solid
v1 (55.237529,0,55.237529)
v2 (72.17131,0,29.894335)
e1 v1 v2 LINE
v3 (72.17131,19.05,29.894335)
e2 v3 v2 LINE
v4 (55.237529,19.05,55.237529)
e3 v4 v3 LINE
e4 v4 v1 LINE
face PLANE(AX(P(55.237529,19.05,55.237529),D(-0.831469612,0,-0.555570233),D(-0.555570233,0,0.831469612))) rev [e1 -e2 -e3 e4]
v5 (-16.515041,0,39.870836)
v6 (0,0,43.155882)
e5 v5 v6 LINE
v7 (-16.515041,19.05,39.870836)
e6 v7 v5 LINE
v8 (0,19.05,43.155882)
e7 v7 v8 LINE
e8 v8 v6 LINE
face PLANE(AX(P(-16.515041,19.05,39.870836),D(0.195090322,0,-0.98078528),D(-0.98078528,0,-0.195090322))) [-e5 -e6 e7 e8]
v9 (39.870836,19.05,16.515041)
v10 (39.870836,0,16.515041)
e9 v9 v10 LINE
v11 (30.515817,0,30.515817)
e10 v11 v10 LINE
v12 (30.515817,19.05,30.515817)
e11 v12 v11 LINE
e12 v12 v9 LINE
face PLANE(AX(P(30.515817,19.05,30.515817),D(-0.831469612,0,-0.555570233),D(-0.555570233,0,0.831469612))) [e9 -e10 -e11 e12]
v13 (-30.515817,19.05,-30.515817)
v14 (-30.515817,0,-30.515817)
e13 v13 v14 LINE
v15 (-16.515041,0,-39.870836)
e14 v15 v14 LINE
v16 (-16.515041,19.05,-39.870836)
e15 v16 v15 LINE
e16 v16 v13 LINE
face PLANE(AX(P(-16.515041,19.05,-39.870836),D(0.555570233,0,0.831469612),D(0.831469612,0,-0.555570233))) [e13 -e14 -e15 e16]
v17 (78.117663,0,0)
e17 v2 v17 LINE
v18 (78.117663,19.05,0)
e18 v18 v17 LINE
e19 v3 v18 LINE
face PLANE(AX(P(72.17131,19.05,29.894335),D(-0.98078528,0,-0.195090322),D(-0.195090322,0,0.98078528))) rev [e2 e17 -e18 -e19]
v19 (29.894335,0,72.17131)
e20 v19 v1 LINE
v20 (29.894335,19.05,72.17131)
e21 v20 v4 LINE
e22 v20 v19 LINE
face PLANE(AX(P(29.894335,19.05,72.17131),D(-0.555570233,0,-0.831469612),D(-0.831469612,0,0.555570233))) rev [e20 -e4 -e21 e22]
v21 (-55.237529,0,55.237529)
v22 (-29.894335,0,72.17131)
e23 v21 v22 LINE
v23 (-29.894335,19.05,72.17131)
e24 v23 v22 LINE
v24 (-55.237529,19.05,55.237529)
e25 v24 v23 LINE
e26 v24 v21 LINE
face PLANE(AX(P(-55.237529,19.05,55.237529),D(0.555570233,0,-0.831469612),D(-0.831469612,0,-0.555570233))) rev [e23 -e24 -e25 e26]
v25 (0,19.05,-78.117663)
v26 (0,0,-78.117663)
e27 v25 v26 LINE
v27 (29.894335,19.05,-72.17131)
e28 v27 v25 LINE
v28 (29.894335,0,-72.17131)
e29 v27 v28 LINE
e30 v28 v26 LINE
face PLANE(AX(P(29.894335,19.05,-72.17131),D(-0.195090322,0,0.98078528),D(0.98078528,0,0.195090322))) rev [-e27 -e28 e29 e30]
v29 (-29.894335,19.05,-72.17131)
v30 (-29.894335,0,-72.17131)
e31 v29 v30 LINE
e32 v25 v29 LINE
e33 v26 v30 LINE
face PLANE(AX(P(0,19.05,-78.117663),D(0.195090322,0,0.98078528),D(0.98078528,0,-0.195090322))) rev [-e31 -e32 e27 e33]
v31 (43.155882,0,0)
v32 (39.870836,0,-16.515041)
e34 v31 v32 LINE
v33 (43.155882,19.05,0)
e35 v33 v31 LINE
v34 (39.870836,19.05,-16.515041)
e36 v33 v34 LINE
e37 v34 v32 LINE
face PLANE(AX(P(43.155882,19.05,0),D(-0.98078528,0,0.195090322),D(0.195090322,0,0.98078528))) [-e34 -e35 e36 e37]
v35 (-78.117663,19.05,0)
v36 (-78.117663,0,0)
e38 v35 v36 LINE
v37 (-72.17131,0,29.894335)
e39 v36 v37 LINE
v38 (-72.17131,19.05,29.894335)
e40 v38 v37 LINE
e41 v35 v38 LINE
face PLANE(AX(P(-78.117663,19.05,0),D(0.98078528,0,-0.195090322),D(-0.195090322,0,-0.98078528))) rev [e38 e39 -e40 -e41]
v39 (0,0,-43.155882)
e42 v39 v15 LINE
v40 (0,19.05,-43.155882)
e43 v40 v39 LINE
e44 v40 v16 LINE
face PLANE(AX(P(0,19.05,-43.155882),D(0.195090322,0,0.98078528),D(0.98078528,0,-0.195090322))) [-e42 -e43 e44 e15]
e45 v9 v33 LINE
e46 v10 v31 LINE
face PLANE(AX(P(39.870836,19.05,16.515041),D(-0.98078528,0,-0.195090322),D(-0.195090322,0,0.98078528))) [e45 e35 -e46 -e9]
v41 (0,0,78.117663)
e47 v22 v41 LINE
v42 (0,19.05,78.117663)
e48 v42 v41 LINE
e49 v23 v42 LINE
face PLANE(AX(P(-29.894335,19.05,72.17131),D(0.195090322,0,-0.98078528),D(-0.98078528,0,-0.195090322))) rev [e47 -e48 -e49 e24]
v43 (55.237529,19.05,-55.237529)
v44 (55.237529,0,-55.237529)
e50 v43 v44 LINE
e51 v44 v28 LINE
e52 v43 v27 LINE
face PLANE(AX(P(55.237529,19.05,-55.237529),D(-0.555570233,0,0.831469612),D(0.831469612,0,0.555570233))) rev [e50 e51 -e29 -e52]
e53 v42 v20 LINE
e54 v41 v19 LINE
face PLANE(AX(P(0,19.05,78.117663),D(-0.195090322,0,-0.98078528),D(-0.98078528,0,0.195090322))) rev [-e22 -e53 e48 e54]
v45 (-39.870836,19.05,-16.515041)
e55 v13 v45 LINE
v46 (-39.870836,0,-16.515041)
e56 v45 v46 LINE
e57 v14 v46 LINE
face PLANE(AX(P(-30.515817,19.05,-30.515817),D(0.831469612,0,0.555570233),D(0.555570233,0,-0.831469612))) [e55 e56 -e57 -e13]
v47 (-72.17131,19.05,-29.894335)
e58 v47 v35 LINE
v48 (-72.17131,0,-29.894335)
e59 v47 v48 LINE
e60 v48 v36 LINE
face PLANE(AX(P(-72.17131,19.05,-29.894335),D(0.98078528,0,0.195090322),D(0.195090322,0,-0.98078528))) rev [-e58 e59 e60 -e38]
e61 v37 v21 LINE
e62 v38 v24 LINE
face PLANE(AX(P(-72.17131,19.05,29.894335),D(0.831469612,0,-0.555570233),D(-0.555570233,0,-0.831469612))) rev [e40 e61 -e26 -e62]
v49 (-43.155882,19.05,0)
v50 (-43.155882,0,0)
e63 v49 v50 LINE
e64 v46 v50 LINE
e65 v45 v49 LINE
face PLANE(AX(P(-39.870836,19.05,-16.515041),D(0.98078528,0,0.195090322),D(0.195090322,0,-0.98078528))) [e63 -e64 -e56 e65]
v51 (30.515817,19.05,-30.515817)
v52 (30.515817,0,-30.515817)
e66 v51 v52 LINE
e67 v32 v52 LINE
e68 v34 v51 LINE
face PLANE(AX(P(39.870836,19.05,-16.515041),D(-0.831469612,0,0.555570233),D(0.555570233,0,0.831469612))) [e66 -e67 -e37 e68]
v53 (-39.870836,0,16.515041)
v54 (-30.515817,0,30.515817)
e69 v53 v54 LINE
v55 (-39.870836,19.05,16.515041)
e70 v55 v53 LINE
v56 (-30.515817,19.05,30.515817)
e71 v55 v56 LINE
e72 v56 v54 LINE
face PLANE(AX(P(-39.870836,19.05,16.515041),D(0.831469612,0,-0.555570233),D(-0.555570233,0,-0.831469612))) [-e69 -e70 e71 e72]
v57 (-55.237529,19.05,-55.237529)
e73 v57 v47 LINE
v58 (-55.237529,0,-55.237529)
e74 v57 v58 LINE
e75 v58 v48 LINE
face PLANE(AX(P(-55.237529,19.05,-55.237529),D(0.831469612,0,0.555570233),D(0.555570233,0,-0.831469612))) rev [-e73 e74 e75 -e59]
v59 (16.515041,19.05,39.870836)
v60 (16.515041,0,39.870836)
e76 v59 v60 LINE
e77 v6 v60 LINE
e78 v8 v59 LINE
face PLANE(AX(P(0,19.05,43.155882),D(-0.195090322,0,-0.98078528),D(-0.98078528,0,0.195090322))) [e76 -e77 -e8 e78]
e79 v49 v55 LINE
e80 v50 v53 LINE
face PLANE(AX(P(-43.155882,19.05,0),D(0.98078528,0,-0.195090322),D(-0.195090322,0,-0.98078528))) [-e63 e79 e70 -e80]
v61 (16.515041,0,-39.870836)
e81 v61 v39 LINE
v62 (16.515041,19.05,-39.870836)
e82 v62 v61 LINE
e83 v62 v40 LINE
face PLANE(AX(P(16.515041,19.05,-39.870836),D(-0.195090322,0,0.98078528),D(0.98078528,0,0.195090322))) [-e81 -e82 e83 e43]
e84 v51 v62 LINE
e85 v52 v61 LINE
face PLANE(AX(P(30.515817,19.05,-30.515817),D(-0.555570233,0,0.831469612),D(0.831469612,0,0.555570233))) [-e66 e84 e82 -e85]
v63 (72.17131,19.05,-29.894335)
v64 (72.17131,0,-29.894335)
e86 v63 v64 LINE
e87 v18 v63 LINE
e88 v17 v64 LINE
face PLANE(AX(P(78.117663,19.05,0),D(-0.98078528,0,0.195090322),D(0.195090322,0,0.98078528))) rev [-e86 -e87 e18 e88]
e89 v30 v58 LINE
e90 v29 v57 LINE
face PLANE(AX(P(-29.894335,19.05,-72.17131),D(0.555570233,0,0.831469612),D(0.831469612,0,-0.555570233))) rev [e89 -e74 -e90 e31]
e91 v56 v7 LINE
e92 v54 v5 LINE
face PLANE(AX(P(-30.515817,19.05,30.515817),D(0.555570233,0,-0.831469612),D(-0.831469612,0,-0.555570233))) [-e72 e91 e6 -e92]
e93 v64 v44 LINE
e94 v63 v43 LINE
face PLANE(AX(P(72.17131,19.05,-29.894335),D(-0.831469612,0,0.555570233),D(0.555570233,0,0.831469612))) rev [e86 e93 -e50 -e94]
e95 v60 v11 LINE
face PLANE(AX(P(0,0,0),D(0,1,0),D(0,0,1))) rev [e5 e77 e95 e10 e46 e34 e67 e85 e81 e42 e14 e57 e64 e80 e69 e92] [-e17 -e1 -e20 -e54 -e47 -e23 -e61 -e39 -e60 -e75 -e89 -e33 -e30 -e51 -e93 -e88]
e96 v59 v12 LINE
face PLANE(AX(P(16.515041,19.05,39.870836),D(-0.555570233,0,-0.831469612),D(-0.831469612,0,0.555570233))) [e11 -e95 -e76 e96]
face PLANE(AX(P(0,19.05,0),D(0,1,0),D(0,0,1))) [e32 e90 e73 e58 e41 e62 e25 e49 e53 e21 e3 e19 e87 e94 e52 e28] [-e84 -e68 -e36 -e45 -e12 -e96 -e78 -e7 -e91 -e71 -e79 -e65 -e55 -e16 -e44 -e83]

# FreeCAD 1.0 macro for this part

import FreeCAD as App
import Part
import Sketcher
Q = App.Units.Quantity

doc = App.newDocument("Part")
body = doc.addObject("PartDesign::Body", "Body")

# Sketch on XZ plane
sketch1 = body.newObject("Sketcher::SketchObject", "Sketch")
sketch1.AttachmentSupport = (doc.getObject("XZ_Plane"), [""])
sketch1.MapMode = "FlatFace"
sketch1.addGeometry([
    Part.LineSegment(App.Vector(-78, 0, 0), App.Vector(-72, 30, 0)),  # 0
    Part.LineSegment(App.Vector(-72, 30, 0), App.Vector(-55, 55, 0)),  # 1
    Part.LineSegment(App.Vector(-55, 55, 0), App.Vector(-30, 72, 0)),  # 2
    Part.LineSegment(App.Vector(-30, 72, 0), App.Vector(0, 78, 0)),  # 3
    Part.LineSegment(App.Vector(0, 78, 0), App.Vector(30, 72, 0)),  # 4
    Part.LineSegment(App.Vector(30, 72, 0), App.Vector(55, 55, 0)),  # 5
    Part.LineSegment(App.Vector(55, 55, 0), App.Vector(72, 30, 0)),  # 6
    Part.LineSegment(App.Vector(72, 30, 0), App.Vector(78, 0, 0)),  # 7
    Part.LineSegment(App.Vector(78, 0, 0), App.Vector(72, -30, 0)),  # 8
    Part.LineSegment(App.Vector(72, -30, 0), App.Vector(55, -55, 0)),  # 9
    Part.LineSegment(App.Vector(55, -55, 0), App.Vector(30, -72, 0)),  # 10
    Part.LineSegment(App.Vector(30, -72, 0), App.Vector(0, -78, 0)),  # 11
    Part.LineSegment(App.Vector(0, -78, 0), App.Vector(-30, -72, 0)),  # 12
    Part.LineSegment(App.Vector(-30, -72, 0), App.Vector(-55, -55, 0)),  # 13
    Part.LineSegment(App.Vector(-55, -55, 0), App.Vector(-72, -30, 0)),  # 14
    Part.LineSegment(App.Vector(-72, -30, 0), App.Vector(-78, 0, 0)),  # 15
    Part.LineSegment(App.Vector(-40, 17, 0), App.Vector(-43, 0, 0)),  # 16
    Part.LineSegment(App.Vector(-43, 0, 0), App.Vector(-40, -17, 0)),  # 17
    Part.LineSegment(App.Vector(-40, -17, 0), App.Vector(-31, -31, 0)),  # 18
    Part.LineSegment(App.Vector(-31, -31, 0), App.Vector(-17, -40, 0)),  # 19
    Part.LineSegment(App.Vector(-17, -40, 0), App.Vector(0, -43, 0)),  # 20
    Part.LineSegment(App.Vector(0, -43, 0), App.Vector(17, -40, 0)),  # 21
    Part.LineSegment(App.Vector(17, -40, 0), App.Vector(31, -31, 0)),  # 22
    Part.LineSegment(App.Vector(31, -31, 0), App.Vector(40, -17, 0)),  # 23
    Part.LineSegment(App.Vector(40, -17, 0), App.Vector(43, 0, 0)),  # 24
    Part.LineSegment(App.Vector(43, 0, 0), App.Vector(40, 17, 0)),  # 25
    Part.LineSegment(App.Vector(40, 17, 0), App.Vector(31, 31, 0)),  # 26
    Part.LineSegment(App.Vector(31, 31, 0), App.Vector(17, 40, 0)),  # 27
    Part.LineSegment(App.Vector(17, 40, 0), App.Vector(0, 43, 0)),  # 28
    Part.LineSegment(App.Vector(0, 43, 0), App.Vector(-17, 40, 0)),  # 29
    Part.LineSegment(App.Vector(-17, 40, 0), App.Vector(-31, 31, 0)),  # 30
    Part.LineSegment(App.Vector(-31, 31, 0), App.Vector(-40, 17, 0)),  # 31
], False)
sketch1.addConstraint([
    Sketcher.Constraint("Coincident", 0, 2, 1, 1),
    Sketcher.Constraint("Coincident", 1, 2, 2, 1),
    Sketcher.Constraint("Coincident", 2, 2, 3, 1),
    Sketcher.Constraint("Coincident", 3, 2, 4, 1),
    Sketcher.Constraint("Coincident", 4, 2, 5, 1),
    Sketcher.Constraint("Coincident", 5, 2, 6, 1),
    Sketcher.Constraint("Coincident", 6, 2, 7, 1),
    Sketcher.Constraint("Coincident", 7, 2, 8, 1),
    Sketcher.Constraint("Coincident", 8, 2, 9, 1),
    Sketcher.Constraint("Coincident", 9, 2, 10, 1),
    Sketcher.Constraint("Coincident", 10, 2, 11, 1),
    Sketcher.Constraint("Coincident", 11, 2, 12, 1),
    Sketcher.Constraint("Coincident", 12, 2, 13, 1),
    Sketcher.Constraint("Coincident", 13, 2, 14, 1),
    Sketcher.Constraint("Coincident", 14, 2, 15, 1),
    Sketcher.Constraint("Coincident", 15, 2, 0, 1),
    Sketcher.Constraint("Coincident", 16, 2, 17, 1),
    Sketcher.Constraint("Coincident", 17, 2, 18, 1),
    Sketcher.Constraint("Coincident", 18, 2, 19, 1),
    Sketcher.Constraint("Coincident", 19, 2, 20, 1),
    Sketcher.Constraint("Coincident", 20, 2, 21, 1),
    Sketcher.Constraint("Coincident", 21, 2, 22, 1),
    Sketcher.Constraint("Coincident", 22, 2, 23, 1),
    Sketcher.Constraint("Coincident", 23, 2, 24, 1),
    Sketcher.Constraint("Coincident", 24, 2, 25, 1),
    Sketcher.Constraint("Coincident", 25, 2, 26, 1),
    Sketcher.Constraint("Coincident", 26, 2, 27, 1),
    Sketcher.Constraint("Coincident", 27, 2, 28, 1),
    Sketcher.Constraint("Coincident", 28, 2, 29, 1),
    Sketcher.Constraint("Coincident", 29, 2, 30, 1),
    Sketcher.Constraint("Coincident", 30, 2, 31, 1),
    Sketcher.Constraint("Coincident", 31, 2, 16, 1),
    Sketcher.Constraint("Symmetric", 0, 2, 8, 2, -1, 1),
    Sketcher.Constraint("Symmetric", 1, 2, 9, 2, -1, 1),
    Sketcher.Constraint("Symmetric", 2, 2, 10, 2, -1, 1),
    Sketcher.Constraint("Symmetric", 3, 2, 11, 2, -1, 1),
    Sketcher.Constraint("Symmetric", 4, 2, 12, 2, -1, 1),
    Sketcher.Constraint("Symmetric", 5, 2, 13, 2, -1, 1),
    Sketcher.Constraint("Symmetric", 6, 2, 14, 2, -1, 1),
    Sketcher.Constraint("Symmetric", 7, 2, 15, 2, -1, 1),
    Sketcher.Constraint("Symmetric", 16, 2, 24, 2, -1, 1),
    Sketcher.Constraint("Symmetric", 17, 2, 25, 2, -1, 1),
    Sketcher.Constraint("Symmetric", 18, 2, 26, 2, -1, 1),
    Sketcher.Constraint("Symmetric", 19, 2, 27, 2, -1, 1),
    Sketcher.Constraint("Symmetric", 20, 2, 28, 2, -1, 1),
    Sketcher.Constraint("Symmetric", 21, 2, 29, 2, -1, 1),
    Sketcher.Constraint("Symmetric", 22, 2, 30, 2, -1, 1),
    Sketcher.Constraint("Symmetric", 23, 2, 31, 2, -1, 1),
    Sketcher.Constraint("Symmetric", 2, 2, 4, 2, -2),
    Sketcher.Constraint("Symmetric", 1, 2, 5, 2, -2),
    Sketcher.Constraint("Symmetric", 0, 2, 6, 2, -2),
    Sketcher.Constraint("Symmetric", 19, 2, 21, 2, -2),
    Sketcher.Constraint("Symmetric", 18, 2, 22, 2, -2),
    Sketcher.Constraint("Symmetric", 17, 2, 23, 2, -2),
    Sketcher.Constraint("PointOnObject", 3, 2, -2),
    Sketcher.Constraint("PointOnObject", 7, 2, -1),
    Sketcher.Constraint("PointOnObject", 16, 2, -1),
    Sketcher.Constraint("PointOnObject", 20, 2, -2),
    Sketcher.Constraint("Perpendicular", 0, 4),
    Sketcher.Constraint("Perpendicular", 1, 5),
    Sketcher.Constraint("Perpendicular", 12, 16),
    Sketcher.Constraint("Parallel", 14, 18),
    Sketcher.Constraint("Parallel", 13, 19),
    Sketcher.Constraint("Perpendicular", 16, 20),
    Sketcher.Constraint("Equal", 0, 1),
    Sketcher.Constraint("Equal", 1, 2),
    Sketcher.Constraint("Equal", 2, 3),
    Sketcher.Constraint("Equal", 17, 18),
    Sketcher.Constraint("Equal", 18, 19),
    Sketcher.Constraint("Equal", 19, 20),
    Sketcher.Constraint("Distance", 0, Q("1.2 in")),
    Sketcher.Constraint("Angle", 0, Q("78.75 deg")),
    Sketcher.Constraint("Angle", 1, Q("56.25 deg")),
    Sketcher.Constraint("DistanceX", 17, 2, 12, 2, Q("9.976501 mm")),
])
pad1 = body.newObject("PartDesign::Pad", "Pad")
pad1.Profile = sketch1
pad1.Length = Q("0.75 in")
pad1.Reversed = True

doc.recompute()
